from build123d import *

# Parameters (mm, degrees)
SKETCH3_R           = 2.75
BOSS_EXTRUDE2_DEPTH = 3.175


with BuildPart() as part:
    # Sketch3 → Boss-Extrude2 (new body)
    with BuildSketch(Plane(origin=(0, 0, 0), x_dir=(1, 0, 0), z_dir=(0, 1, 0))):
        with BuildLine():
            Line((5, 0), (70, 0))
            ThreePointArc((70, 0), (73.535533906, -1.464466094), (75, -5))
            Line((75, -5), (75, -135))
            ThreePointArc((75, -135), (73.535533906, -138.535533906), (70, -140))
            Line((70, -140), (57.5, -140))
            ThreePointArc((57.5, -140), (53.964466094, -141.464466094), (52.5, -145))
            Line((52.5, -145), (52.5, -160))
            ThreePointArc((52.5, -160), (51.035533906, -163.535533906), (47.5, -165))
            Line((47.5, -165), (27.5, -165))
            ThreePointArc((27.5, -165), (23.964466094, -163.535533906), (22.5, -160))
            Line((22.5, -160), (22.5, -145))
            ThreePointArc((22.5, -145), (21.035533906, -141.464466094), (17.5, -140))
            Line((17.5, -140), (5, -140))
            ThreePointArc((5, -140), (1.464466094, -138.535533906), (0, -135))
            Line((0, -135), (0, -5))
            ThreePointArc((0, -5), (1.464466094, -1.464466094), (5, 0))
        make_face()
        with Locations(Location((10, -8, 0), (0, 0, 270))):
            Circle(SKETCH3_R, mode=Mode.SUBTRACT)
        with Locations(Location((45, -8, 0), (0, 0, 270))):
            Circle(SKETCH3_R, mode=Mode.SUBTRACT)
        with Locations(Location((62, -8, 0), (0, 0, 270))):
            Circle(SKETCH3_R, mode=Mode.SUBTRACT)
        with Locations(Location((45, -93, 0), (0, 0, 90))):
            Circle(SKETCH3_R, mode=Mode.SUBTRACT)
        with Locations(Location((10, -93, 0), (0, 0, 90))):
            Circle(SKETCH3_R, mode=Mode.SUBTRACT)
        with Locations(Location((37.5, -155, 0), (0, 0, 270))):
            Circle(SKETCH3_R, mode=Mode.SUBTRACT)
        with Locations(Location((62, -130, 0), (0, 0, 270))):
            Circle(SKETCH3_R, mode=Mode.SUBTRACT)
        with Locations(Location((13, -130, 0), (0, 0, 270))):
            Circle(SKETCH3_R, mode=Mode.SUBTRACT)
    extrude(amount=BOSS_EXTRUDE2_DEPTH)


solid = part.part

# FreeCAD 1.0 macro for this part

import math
import FreeCAD as App
import Part
import Sketcher

V = App.Vector

doc = App.newDocument("Part")
body = doc.addObject("PartDesign::Body", "Body")

# Sketch on XZ plane
sketch1 = body.newObject("Sketcher::SketchObject", "Sketch")
sketch1.AttachmentSupport = (doc.getObject("XZ_Plane"), [""])
sketch1.MapMode = "FlatFace"
sketch1.addGeometry([
    Part.LineSegment(V(70, 0, 0), V(5, 0, 0)),  # 0
    Part.ArcOfCircle(Part.Circle(V(5, 5, 0), V(0, 0, 1), 5), math.radians(180), math.radians(270)),  # 1
    Part.LineSegment(V(0, 5, 0), V(0, 135, 0)),  # 2
    Part.ArcOfCircle(Part.Circle(V(5, 135, 0), V(0, 0, 1), 5), math.radians(90), math.radians(180)),  # 3
    Part.LineSegment(V(5, 140, 0), V(17.5, 140, 0)),  # 4
    Part.ArcOfCircle(Part.Circle(V(17.5, 145, 0), V(0, 0, 1), 5), math.radians(-90), math.radians(0)),  # 5
    Part.LineSegment(V(22.5, 145, 0), V(22.5, 160, 0)),  # 6
    Part.ArcOfCircle(Part.Circle(V(27.5, 160, 0), V(0, 0, 1), 5), math.radians(90), math.radians(180)),  # 7
    Part.LineSegment(V(27.5, 165, 0), V(47.5, 165, 0)),  # 8
    Part.ArcOfCircle(Part.Circle(V(47.5, 160, 0), V(0, 0, 1), 5), math.radians(0), math.radians(90)),  # 9
    Part.LineSegment(V(52.5, 160, 0), V(52.5, 145, 0)),  # 10
    Part.ArcOfCircle(Part.Circle(V(57.5, 145, 0), V(0, 0, 1), 5), math.radians(180), math.radians(270)),  # 11
    Part.LineSegment(V(57.5, 140, 0), V(70, 140, 0)),  # 12
    Part.ArcOfCircle(Part.Circle(V(70, 135, 0), V(0, 0, 1), 5), math.radians(0), math.radians(90)),  # 13
    Part.LineSegment(V(75, 135, 0), V(75, 5, 0)),  # 14
    Part.ArcOfCircle(Part.Circle(V(70, 5, 0), V(0, 0, 1), 5), math.radians(-90), math.radians(0)),  # 15
    Part.Circle(V(62, 130, 0), V(0, 0, 1), 2.75),  # 16
    Part.Circle(V(37.5, 155, 0), V(0, 0, 1), 2.75),  # 17
    Part.Circle(V(45, 93, 0), V(0, 0, 1), 2.75),  # 18
    Part.Circle(V(13, 130, 0), V(0, 0, 1), 2.75),  # 19
    Part.Circle(V(10, 93, 0), V(0, 0, 1), 2.75),  # 20
    Part.Circle(V(62, 8, 0), V(0, 0, 1), 2.75),  # 21
    Part.Circle(V(45, 8, 0), V(0, 0, 1), 2.75),  # 22
    Part.Circle(V(10, 8, 0), V(0, 0, 1), 2.75),  # 23
], False)
sketch1.addConstraint([
    Sketcher.Constraint("Tangent", 0, 2, 1, 2),
    Sketcher.Constraint("Tangent", 1, 1, 2, 1),
    Sketcher.Constraint("Tangent", 2, 2, 3, 2),
    Sketcher.Constraint("Tangent", 3, 1, 4, 1),
    Sketcher.Constraint("Tangent", 4, 2, 5, 1),
    Sketcher.Constraint("Tangent", 5, 2, 6, 1),
    Sketcher.Constraint("Tangent", 6, 2, 7, 2),
    Sketcher.Constraint("Tangent", 7, 1, 8, 1),
    Sketcher.Constraint("Tangent", 8, 2, 9, 2),
    Sketcher.Constraint("Tangent", 9, 1, 10, 1),
    Sketcher.Constraint("Tangent", 10, 2, 11, 1),
    Sketcher.Constraint("Tangent", 11, 2, 12, 1),
    Sketcher.Constraint("Tangent", 12, 2, 13, 2),
    Sketcher.Constraint("Tangent", 13, 1, 14, 1),
    Sketcher.Constraint("Tangent", 14, 2, 15, 2),
    Sketcher.Constraint("Tangent", 15, 1, 0, 1),
    Sketcher.Constraint("Horizontal", 0),
    Sketcher.Constraint("Vertical", 2),
    Sketcher.Constraint("Horizontal", 4),
    Sketcher.Constraint("Vertical", 6),
    Sketcher.Constraint("Horizontal", 8),
    Sketcher.Constraint("Vertical", 10),
    Sketcher.Constraint("Horizontal", 12),
    Sketcher.Constraint("Vertical", 14),
    Sketcher.Constraint("Equal", 1, 3),
    Sketcher.Constraint("Equal", 3, 5),
    Sketcher.Constraint("Equal", 5, 7),
    Sketcher.Constraint("Equal", 7, 9),
    Sketcher.Constraint("Equal", 9, 11),
    Sketcher.Constraint("Equal", 11, 13),
    Sketcher.Constraint("Equal", 13, 15),
    Sketcher.Constraint("Equal", 16, 17),
    Sketcher.Constraint("Equal", 17, 18),
    Sketcher.Constraint("Equal", 18, 19),
    Sketcher.Constraint("Equal", 19, 20),
    Sketcher.Constraint("Equal", 20, 21),
    Sketcher.Constraint("Equal", 21, 22),
    Sketcher.Constraint("Equal", 22, 23),
    Sketcher.Constraint("PointOnObject", 0, 2, -1),
    Sketcher.Constraint("PointOnObject", 1, 1, -2),
    Sketcher.Constraint("Horizontal", 5, 3, 11, 3),
    Sketcher.Constraint("Horizontal", 16, 3, 19, 3),
    Sketcher.Constraint("Horizontal", 18, 3, 20, 3),
    Sketcher.Constraint("Horizontal", 21, 3, 22, 3),
    Sketcher.Constraint("Horizontal", 22, 3, 23, 3),
    Sketcher.Constraint("Vertical", 16, 3, 21, 3),
    Sketcher.Constraint("Vertical", 18, 3, 22, 3),
    Sketcher.Constraint("Vertical", 20, 3, 23, 3),
    Sketcher.Constraint("Equal", 4, 12),
    Sketcher.Constraint("Radius", 1, 5.0),
    Sketcher.Constraint("Diameter", 16, 5.5),
    Sketcher.Constraint("DistanceX", 0, 2, 0, 1, 65.0),
    Sketcher.Constraint("DistanceX", 8, 1, 8, 2, 20.0),
    Sketcher.Constraint("DistanceY", 2, 1, 2, 2, 130.0),
    Sketcher.Constraint("DistanceY", 6, 1, 6, 2, 15.0),
    Sketcher.Constraint("DistanceX", -1, 1, 16, 3, 62.0),
    Sketcher.Constraint("DistanceY", -1, 1, 16, 3, 130.0),
    Sketcher.Constraint("DistanceY", -1, 1, 17, 3, 155.0),
    Sketcher.Constraint("DistanceX", -1, 1, 18, 3, 45.0),
    Sketcher.Constraint("DistanceY", -1, 1, 18, 3, 93.0),
    Sketcher.Constraint("DistanceX", -1, 1, 19, 3, 13.0),
    Sketcher.Constraint("DistanceX", -1, 1, 20, 3, 10.0),
    Sketcher.Constraint("DistanceY", -1, 1, 21, 3, 8.0),
    Sketcher.Constraint("DistanceX", 7, 3, 17, 3, 10.0),
])
pad1 = body.newObject("PartDesign::Pad", "Pad")
pad1.Profile = sketch1
pad1.Length = 3.175
pad1.Reversed = True

doc.recompute()
